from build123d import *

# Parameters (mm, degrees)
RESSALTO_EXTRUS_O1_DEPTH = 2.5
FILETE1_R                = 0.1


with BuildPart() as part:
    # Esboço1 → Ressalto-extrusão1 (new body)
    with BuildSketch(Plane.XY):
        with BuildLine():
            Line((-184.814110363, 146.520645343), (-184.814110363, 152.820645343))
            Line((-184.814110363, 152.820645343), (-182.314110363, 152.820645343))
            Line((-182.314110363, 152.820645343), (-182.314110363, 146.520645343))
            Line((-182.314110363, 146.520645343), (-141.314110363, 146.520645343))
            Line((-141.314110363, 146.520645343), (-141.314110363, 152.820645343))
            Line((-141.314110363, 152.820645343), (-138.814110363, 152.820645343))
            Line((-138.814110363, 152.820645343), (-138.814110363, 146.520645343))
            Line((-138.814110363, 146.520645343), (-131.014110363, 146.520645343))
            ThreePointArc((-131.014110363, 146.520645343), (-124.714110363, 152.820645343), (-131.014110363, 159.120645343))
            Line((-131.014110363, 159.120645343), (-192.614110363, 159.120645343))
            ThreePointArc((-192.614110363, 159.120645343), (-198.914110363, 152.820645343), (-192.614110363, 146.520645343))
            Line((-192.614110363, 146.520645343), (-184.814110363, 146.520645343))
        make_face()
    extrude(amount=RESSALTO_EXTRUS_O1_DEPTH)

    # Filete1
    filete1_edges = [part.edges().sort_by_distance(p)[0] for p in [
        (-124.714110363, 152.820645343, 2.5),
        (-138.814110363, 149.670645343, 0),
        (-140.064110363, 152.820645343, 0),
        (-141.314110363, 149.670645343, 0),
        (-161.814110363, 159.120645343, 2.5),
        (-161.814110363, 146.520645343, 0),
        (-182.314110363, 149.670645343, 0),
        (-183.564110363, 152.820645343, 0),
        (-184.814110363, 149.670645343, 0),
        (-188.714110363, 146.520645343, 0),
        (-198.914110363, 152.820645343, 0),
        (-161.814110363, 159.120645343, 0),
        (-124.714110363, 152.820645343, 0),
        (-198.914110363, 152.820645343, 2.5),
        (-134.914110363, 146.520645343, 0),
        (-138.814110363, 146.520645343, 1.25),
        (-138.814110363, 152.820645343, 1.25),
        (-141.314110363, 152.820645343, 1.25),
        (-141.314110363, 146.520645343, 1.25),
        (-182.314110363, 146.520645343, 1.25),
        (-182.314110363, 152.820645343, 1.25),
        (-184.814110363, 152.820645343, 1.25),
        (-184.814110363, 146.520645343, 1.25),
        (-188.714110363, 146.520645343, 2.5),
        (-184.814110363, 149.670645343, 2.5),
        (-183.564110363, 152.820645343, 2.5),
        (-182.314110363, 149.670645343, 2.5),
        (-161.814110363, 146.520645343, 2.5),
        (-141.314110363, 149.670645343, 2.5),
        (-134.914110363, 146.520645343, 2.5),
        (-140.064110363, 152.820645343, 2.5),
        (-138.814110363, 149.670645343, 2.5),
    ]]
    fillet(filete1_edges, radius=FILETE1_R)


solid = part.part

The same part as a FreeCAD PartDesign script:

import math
import FreeCAD as App
import Part
import Sketcher
from FreeCAD import Vector

doc = App.newDocument("Part")
body = doc.addObject("PartDesign::Body", "Body")

# Sketch on XY plane
sketch1 = body.newObject("Sketcher::SketchObject", "Sketch")
sketch1.AttachmentSupport = (doc.getObject("XY_Plane"), [""])
sketch1.MapMode = "FlatFace"
sketch1.addGeometry(Part.LineSegment(Vector(-184.81411, 146.520645, 0), Vector(-184.81411, 152.820645, 0)), False)
sketch1.addGeometry(Part.LineSegment(Vector(-184.81411, 152.820645, 0), Vector(-182.31411, 152.820645, 0)), False)
sketch1.addGeometry(Part.LineSegment(Vector(-182.31411, 152.820645, 0), Vector(-182.31411, 146.520645, 0)), False)
sketch1.addGeometry(Part.LineSegment(Vector(-182.31411, 146.520645, 0), Vector(-141.31411, 146.520645, 0)), False)
sketch1.addGeometry(Part.LineSegment(Vector(-141.31411, 146.520645, 0), Vector(-141.31411, 152.820645, 0)), False)
sketch1.addGeometry(Part.LineSegment(Vector(-141.31411, 152.820645, 0), Vector(-138.81411, 152.820645, 0)), False)
sketch1.addGeometry(Part.LineSegment(Vector(-138.81411, 152.820645, 0), Vector(-138.81411, 146.520645, 0)), False)
sketch1.addGeometry(Part.LineSegment(Vector(-138.81411, 146.520645, 0), Vector(-131.01411, 146.520645, 0)), False)
sketch1.addGeometry(Part.ArcOfCircle(Part.Circle(Vector(-131.01411, 152.820645, 0), Vector(0, 0, 1), 6.3), math.radians(-90), math.radians(90)), False)
sketch1.addGeometry(Part.LineSegment(Vector(-131.01411, 159.120645, 0), Vector(-192.61411, 159.120645, 0)), False)
sketch1.addGeometry(Part.ArcOfCircle(Part.Circle(Vector(-192.61411, 152.820645, 0), Vector(0, 0, 1), 6.3), math.radians(90), math.radians(270)), False)
sketch1.addGeometry(Part.LineSegment(Vector(-192.61411, 146.520645, 0), Vector(-184.81411, 146.520645, 0)), False)
sketch1.addConstraint(Sketcher.Constraint("Coincident", 0, 2, 1, 1))
sketch1.addConstraint(Sketcher.Constraint("Coincident", 1, 2, 2, 1))
sketch1.addConstraint(Sketcher.Constraint("Coincident", 2, 2, 3, 1))
sketch1.addConstraint(Sketcher.Constraint("Coincident", 3, 2, 4, 1))
sketch1.addConstraint(Sketcher.Constraint("Coincident", 4, 2, 5, 1))
sketch1.addConstraint(Sketcher.Constraint("Coincident", 5, 2, 6, 1))
sketch1.addConstraint(Sketcher.Constraint("Coincident", 6, 2, 7, 1))
sketch1.addConstraint(Sketcher.Constraint("Tangent", 7, 2, 8, 1))
sketch1.addConstraint(Sketcher.Constraint("Tangent", 8, 2, 9, 1))
sketch1.addConstraint(Sketcher.Constraint("Tangent", 9, 2, 10, 1))
sketch1.addConstraint(Sketcher.Constraint("Tangent", 10, 2, 11, 1))
sketch1.addConstraint(Sketcher.Constraint("Coincident", 11, 2, 0, 1))
sketch1.addConstraint(Sketcher.Constraint("Vertical", 0))
sketch1.addConstraint(Sketcher.Constraint("Horizontal", 1))
sketch1.addConstraint(Sketcher.Constraint("Vertical", 2))
sketch1.addConstraint(Sketcher.Constraint("Horizontal", 3))
sketch1.addConstraint(Sketcher.Constraint("Vertical", 4))
sketch1.addConstraint(Sketcher.Constraint("Horizontal", 5))
sketch1.addConstraint(Sketcher.Constraint("Vertical", 6))
sketch1.addConstraint(Sketcher.Constraint("Horizontal", 7))
sketch1.addConstraint(Sketcher.Constraint("Horizontal", 9))
sketch1.addConstraint(Sketcher.Constraint("Horizontal", 11))
sketch1.addConstraint(Sketcher.Constraint("Equal", 8, 10))
sketch1.addConstraint(Sketcher.Constraint("Horizontal", 10, 3, 0, 2))
sketch1.addConstraint(Sketcher.Constraint("Horizontal", 1, 2, 4, 2))
sketch1.addConstraint(Sketcher.Constraint("Horizontal", 3, 2, 6, 2))
sketch1.addConstraint(Sketcher.Constraint("Equal", 1, 5))
sketch1.addConstraint(Sketcher.Constraint("Equal", 7, 11))
sketch1.addConstraint(Sketcher.Constraint("Radius", 8, 6.3))
sketch1.addConstraint(Sketcher.Constraint("DistanceX", 3, 1, 3, 2, 41.0))
sketch1.addConstraint(Sketcher.Constraint("DistanceX", 1, 1, 1, 2, 2.5))
sketch1.addConstraint(Sketcher.Constraint("DistanceX", 7, 1, 7, 2, 7.8))
sketch1.addConstraint(Sketcher.Constraint("DistanceX", 8, 3, -1, 1, 131.01411))
sketch1.addConstraint(Sketcher.Constraint("DistanceY", -1, 1, 8, 3, 152.820645))
pad1 = body.newObject("PartDesign::Pad", "Pad")
pad1.Profile = sketch1
pad1.Length = 2.5
doc.recompute()

fillet = body.newObject("PartDesign::Fillet", "Fillet")
fillet.Base = (pad1, ["Edge1"])
fillet.UseAllEdges = True
fillet.Radius = 0.1

doc.recompute()
